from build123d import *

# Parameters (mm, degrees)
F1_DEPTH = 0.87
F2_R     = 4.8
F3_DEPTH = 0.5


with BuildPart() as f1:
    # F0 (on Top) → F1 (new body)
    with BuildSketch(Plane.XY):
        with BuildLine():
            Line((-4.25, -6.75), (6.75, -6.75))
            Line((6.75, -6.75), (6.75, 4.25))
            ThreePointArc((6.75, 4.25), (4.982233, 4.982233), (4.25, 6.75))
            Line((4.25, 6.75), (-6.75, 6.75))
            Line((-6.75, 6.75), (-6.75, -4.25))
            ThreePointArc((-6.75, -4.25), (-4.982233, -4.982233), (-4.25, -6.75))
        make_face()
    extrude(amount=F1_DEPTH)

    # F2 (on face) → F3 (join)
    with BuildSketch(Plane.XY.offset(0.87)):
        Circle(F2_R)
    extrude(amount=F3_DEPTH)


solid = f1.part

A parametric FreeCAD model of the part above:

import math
import FreeCAD as App
import Part
import Sketcher
from FreeCAD import Vector
Q = App.Units.Quantity

doc = App.newDocument("Part")
body = doc.addObject("PartDesign::Body", "Body")

# Sketch on XY plane
sketch1 = body.newObject("Sketcher::SketchObject", "Sketch")
sketch1.AttachmentSupport = (doc.getObject("XY_Plane"), [""])
sketch1.MapMode = "FlatFace"
sketch1.addGeometry(Part.LineSegment(Vector(-4.2, -6.8, 0), Vector(6.8, -6.8, 0)), False)
sketch1.addGeometry(Part.LineSegment(Vector(6.8, -6.8, 0), Vector(6.8, 4.2, 0)), False)
sketch1.addGeometry(Part.ArcOfCircle(Part.Circle(Vector(6.7, 6.7, 0), Vector(0, 0, 1), 2.5), math.radians(180), math.radians(270)), False)
sketch1.addGeometry(Part.LineSegment(Vector(4.2, 6.8, 0), Vector(-6.8, 6.8, 0)), False)
sketch1.addGeometry(Part.LineSegment(Vector(-6.8, 6.8, 0), Vector(-6.8, -4.2, 0)), False)
sketch1.addGeometry(Part.ArcOfCircle(Part.Circle(Vector(-6.7, -6.7, 0), Vector(0, 0, 1), 2.5), math.radians(0), math.radians(90)), False)
sketch1.addConstraint(Sketcher.Constraint("Coincident", 0, 2, 1, 1))
sketch1.addConstraint(Sketcher.Constraint("Coincident", 1, 2, 2, 2))
sketch1.addConstraint(Sketcher.Constraint("Coincident", 2, 1, 3, 1))
sketch1.addConstraint(Sketcher.Constraint("Coincident", 3, 2, 4, 1))
sketch1.addConstraint(Sketcher.Constraint("Coincident", 4, 2, 5, 2))
sketch1.addConstraint(Sketcher.Constraint("Coincident", 5, 1, 0, 1))
sketch1.addConstraint(Sketcher.Constraint("Horizontal", 0))
sketch1.addConstraint(Sketcher.Constraint("Vertical", 1))
sketch1.addConstraint(Sketcher.Constraint("Horizontal", 3))
sketch1.addConstraint(Sketcher.Constraint("Vertical", 4))
sketch1.addConstraint(Sketcher.Constraint("Equal", 2, 5))
sketch1.addConstraint(Sketcher.Constraint("Symmetric", 2, 3, 5, 3, -1, 1))
sketch1.addConstraint(Sketcher.Constraint("Symmetric", 0, 2, 3, 2, -1, 1))
sketch1.addConstraint(Sketcher.Constraint("Horizontal", 5, 3, 0, 2))
sketch1.addConstraint(Sketcher.Constraint("Vertical", 2, 3, 0, 2))
sketch1.addConstraint(Sketcher.Constraint("Equal", 3, 1))
sketch1.addConstraint(Sketcher.Constraint("Radius", 2, Q("2.5 mm")))
sketch1.addConstraint(Sketcher.Constraint("DistanceX", 0, 1, 0, 2, Q("11 mm")))
pad1 = body.newObject("PartDesign::Pad", "Pad")
pad1.Profile = sketch1
pad1.Length = 0.87

# Sketch on XY plane
sketch2 = body.newObject("Sketcher::SketchObject", "Sketch001")
sketch2.AttachmentSupport = (doc.getObject("XY_Plane"), [""])
sketch2.MapMode = "FlatFace"
sketch2.AttachmentOffset = App.Placement(Vector(0, 0, 0.87), App.Rotation())
sketch2.addGeometry(Part.Circle(Vector(0, 0, 0), Vector(0, 0, 1), 4.8), False)
sketch2.addConstraint(Sketcher.Constraint("Coincident", 0, 3, -1, 1))
sketch2.addConstraint(Sketcher.Constraint("Diameter", 0, Q("9.6 mm")))
pad2 = body.newObject("PartDesign::Pad", "Pad001")
pad2.Profile = sketch2
pad2.Length = 0.5

doc.recompute()
